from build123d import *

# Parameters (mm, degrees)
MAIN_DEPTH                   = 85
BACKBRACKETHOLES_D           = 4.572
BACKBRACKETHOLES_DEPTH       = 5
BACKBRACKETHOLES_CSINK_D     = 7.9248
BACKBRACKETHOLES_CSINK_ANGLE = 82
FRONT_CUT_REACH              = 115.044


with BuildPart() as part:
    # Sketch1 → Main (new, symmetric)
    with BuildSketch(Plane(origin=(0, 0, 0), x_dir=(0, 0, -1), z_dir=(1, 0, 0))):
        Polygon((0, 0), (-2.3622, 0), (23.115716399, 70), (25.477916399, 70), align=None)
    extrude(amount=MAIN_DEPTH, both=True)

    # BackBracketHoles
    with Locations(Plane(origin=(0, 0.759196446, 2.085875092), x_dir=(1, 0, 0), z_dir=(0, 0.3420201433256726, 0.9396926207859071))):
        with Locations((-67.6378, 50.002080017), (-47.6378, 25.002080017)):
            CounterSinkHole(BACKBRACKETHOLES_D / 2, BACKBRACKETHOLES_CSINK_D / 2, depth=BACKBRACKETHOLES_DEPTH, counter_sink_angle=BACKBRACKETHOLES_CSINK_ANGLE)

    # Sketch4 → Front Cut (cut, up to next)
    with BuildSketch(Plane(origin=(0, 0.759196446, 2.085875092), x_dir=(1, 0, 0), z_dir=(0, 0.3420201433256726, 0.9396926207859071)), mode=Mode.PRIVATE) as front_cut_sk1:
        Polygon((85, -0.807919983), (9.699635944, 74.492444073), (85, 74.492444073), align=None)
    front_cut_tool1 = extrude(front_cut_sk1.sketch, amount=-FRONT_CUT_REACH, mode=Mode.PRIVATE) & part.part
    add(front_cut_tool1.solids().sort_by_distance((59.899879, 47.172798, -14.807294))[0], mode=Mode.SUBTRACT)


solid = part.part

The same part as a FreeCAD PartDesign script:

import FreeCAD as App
import Part
import Sketcher
from FreeCAD import Vector
Q = App.Units.Quantity

doc = App.newDocument("Part")
body = doc.addObject("PartDesign::Body", "Body")

# Sketch on YZ plane
sketch1 = body.newObject("Sketcher::SketchObject", "Sketch")
sketch1.AttachmentSupport = (doc.getObject("YZ_Plane"), [""])
sketch1.MapMode = "FlatFace"
sketch1.addGeometry(Part.LineSegment(Vector(0, 2.4, 0), Vector(0, 0, 0)), False)
sketch1.addGeometry(Part.LineSegment(Vector(0, 0, 0), Vector(70, -25.5, 0)), False)
sketch1.addGeometry(Part.LineSegment(Vector(70, -25.5, 0), Vector(70, -23.1, 0)), False)
sketch1.addGeometry(Part.LineSegment(Vector(70, -23.1, 0), Vector(0, 2.4, 0)), False)
sketch1.addConstraint(Sketcher.Constraint("Coincident", 0, 2, 1, 1))
sketch1.addConstraint(Sketcher.Constraint("Coincident", 1, 2, 2, 1))
sketch1.addConstraint(Sketcher.Constraint("Coincident", 2, 2, 3, 1))
sketch1.addConstraint(Sketcher.Constraint("Coincident", 3, 2, 0, 1))
sketch1.addConstraint(Sketcher.Constraint("Vertical", 0))
sketch1.addConstraint(Sketcher.Constraint("Vertical", 2))
sketch1.addConstraint(Sketcher.Constraint("Coincident", 0, 2, -1, 1))
sketch1.addConstraint(Sketcher.Constraint("Parallel", 1, 3))
sketch1.addConstraint(Sketcher.Constraint("Angle", 1, Q("-20 deg")))
sketch1.addConstraint(Sketcher.Constraint("DistanceX", -1, 1, 1, 2, 70.0))
sketch1.addConstraint(Sketcher.Constraint("DistanceY", 0, 2, 0, 1, 2.3622))
pad1 = body.newObject("PartDesign::Pad", "Pad")
pad1.Profile = sketch1
pad1.Length = 170
pad1.Midplane = True

# Sketch on an angled plane
sketch2 = body.newObject("Sketcher::SketchObject", "Sketch001")
sketch2.Placement = App.Placement(Vector(0, 0.759196, 2.085875), App.Rotation(Vector(1, 0, 0), Vector(0, 0.939692621, -0.342020143), Vector(0, 0.342020143, 0.939692621), "ZXY"))
sketch2.addGeometry(Part.Circle(Vector(-67.6, 50, 0), Vector(0, 0, 1), 2.3), False)
sketch2.addGeometry(Part.Circle(Vector(-47.6, 25, 0), Vector(0, 0, 1), 2.3), False)
sketch2.addConstraint(Sketcher.Constraint("Equal", 0, 1))
sketch2.addConstraint(Sketcher.Constraint("Diameter", 0, 4.572))
sketch2.addConstraint(Sketcher.Constraint("DistanceX", 0, 3, 1, 3, 20.0))
sketch2.addConstraint(Sketcher.Constraint("DistanceY", 1, 3, 0, 3, 25.0))
sketch2.addConstraint(Sketcher.Constraint("DistanceX", 0, 3, -1, 1, 67.6378))
sketch2.addConstraint(Sketcher.Constraint("DistanceY", -1, 1, 0, 3, 50.00208))
doc.recompute()
hole = body.newObject("PartDesign::Hole", "Hole")
hole.Profile = sketch2
hole.ThreadType = "None"
hole.Diameter = 4.572
hole.DepthType = "Dimension"
hole.Depth = 5
hole.DrillPoint = "Flat"
hole.HoleCutType = "Countersink"
hole.HoleCutDiameter = 7.9248
hole.HoleCutCountersinkAngle = 82

# Sketch on an angled plane
sketch3 = body.newObject("Sketcher::SketchObject", "Sketch002")
sketch3.Placement = App.Placement(Vector(0, 0.759196, 2.085875), App.Rotation(Vector(1, 0, 0), Vector(0, 0.939692621, -0.342020143), Vector(0, 0.342020143, 0.939692621), "ZXY"))
sketch3.addGeometry(Part.LineSegment(Vector(10, 74, 0), Vector(85, -1, 0)), False)
sketch3.addGeometry(Part.LineSegment(Vector(85, -1, 0), Vector(85, 74, 0)), False)
sketch3.addGeometry(Part.LineSegment(Vector(85, 74, 0), Vector(10, 74, 0)), False)
sketch3.addConstraint(Sketcher.Constraint("Coincident", 0, 2, 1, 1))
sketch3.addConstraint(Sketcher.Constraint("Coincident", 1, 2, 2, 1))
sketch3.addConstraint(Sketcher.Constraint("Coincident", 2, 2, 0, 1))
sketch3.addConstraint(Sketcher.Constraint("Vertical", 1))
sketch3.addConstraint(Sketcher.Constraint("Horizontal", 2))
sketch3.addConstraint(Sketcher.Constraint("Equal", 2, 1))
sketch3.addConstraint(Sketcher.Constraint("DistanceX", -1, 1, 0, 2, 85.0))
sketch3.addConstraint(Sketcher.Constraint("DistanceX", 2, 2, 2, 1, 75.300364))
sketch3.addConstraint(Sketcher.Constraint("DistanceY", 0, 2, -1, 1, 0.80792))
pocket1 = body.newObject("PartDesign::Pocket", "Pocket")
pocket1.Profile = sketch3
pocket1.Type = "UpToFirst"

doc.recompute()
